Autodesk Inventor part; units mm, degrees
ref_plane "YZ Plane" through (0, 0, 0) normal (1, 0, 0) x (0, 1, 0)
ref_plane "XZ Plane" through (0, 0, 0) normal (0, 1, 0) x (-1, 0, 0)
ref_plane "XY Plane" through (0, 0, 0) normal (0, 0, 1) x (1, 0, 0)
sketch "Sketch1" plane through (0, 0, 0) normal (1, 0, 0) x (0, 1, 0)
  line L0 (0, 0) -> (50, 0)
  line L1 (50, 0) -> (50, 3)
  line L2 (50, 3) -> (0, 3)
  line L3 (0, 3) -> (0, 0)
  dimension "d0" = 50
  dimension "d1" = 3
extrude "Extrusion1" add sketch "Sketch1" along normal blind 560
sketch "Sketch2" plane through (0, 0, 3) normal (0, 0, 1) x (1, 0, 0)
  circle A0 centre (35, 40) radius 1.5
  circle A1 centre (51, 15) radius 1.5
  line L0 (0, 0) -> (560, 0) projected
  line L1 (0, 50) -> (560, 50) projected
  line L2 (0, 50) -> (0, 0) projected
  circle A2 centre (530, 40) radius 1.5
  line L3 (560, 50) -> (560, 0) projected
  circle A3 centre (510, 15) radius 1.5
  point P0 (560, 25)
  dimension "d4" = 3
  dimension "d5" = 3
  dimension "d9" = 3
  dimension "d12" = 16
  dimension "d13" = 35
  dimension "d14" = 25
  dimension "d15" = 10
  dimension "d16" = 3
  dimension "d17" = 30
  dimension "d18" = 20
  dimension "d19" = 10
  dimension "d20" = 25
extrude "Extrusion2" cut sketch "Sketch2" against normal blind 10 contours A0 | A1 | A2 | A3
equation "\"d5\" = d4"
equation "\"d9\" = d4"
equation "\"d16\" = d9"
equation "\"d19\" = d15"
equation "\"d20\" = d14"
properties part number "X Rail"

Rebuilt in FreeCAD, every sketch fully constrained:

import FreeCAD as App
import Part
import Sketcher
from FreeCAD import Vector
Q = App.Units.Quantity


def add_polygon(sketch, points):
    """Adds a closed chain of lines whose ends are joined by coincident constraints."""
    first, n = sketch.GeometryCount, len(points)
    for a, b in zip(points, points[1:] + points[:1]):
        sketch.addGeometry(Part.LineSegment(App.Vector(*a, 0), App.Vector(*b, 0)), False)
    for i in range(n):
        sketch.addConstraint(Sketcher.Constraint("Coincident", first + i, 2, first + (i + 1) % n, 1))

doc = App.newDocument("Part")
body = doc.addObject("PartDesign::Body", "Body")

# Sketch on YZ plane
sketch1 = body.newObject("Sketcher::SketchObject", "Sketch")
sketch1.AttachmentSupport = (doc.getObject("YZ_Plane"), [""])
sketch1.MapMode = "FlatFace"
add_polygon(sketch1, [(0, 3), (0, 0), (50, 0), (50, 3)])  # lines 0-3
sketch1.addConstraint([
    Sketcher.Constraint("Vertical", 0),
    Sketcher.Constraint("Horizontal", 1),
    Sketcher.Constraint("Vertical", 2),
    Sketcher.Constraint("Horizontal", 3),
    Sketcher.Constraint("Coincident", 0, 2, -1, 1),
    Sketcher.Constraint("DistanceX", 1, 1, 1, 2, Q("50 mm")),
    Sketcher.Constraint("DistanceY", 0, 2, 0, 1, Q("3 mm")),
])
pad1 = body.newObject("PartDesign::Pad", "Pad")
pad1.Profile = sketch1
pad1.Length = 560

# Sketch on XY plane
sketch2 = body.newObject("Sketcher::SketchObject", "Sketch001")
sketch2.AttachmentSupport = (doc.getObject("XY_Plane"), [""])
sketch2.MapMode = "FlatFace"
sketch2.AttachmentOffset = App.Placement(Vector(0, 0, 3), App.Rotation())
sketch2.addGeometry([
    Part.Circle(Vector(35, 40, 0), Vector(0, 0, 1), 1.5),
    Part.Circle(Vector(51, 15, 0), Vector(0, 0, 1), 1.5),
    Part.Circle(Vector(530, 40, 0), Vector(0, 0, 1), 1.5),
    Part.Circle(Vector(510, 15, 0), Vector(0, 0, 1), 1.5),
], False)
sketch2.addConstraint([
    Sketcher.Constraint("Equal", 0, 1),
    Sketcher.Constraint("Equal", 1, 2),
    Sketcher.Constraint("Equal", 2, 3),
    Sketcher.Constraint("Horizontal", 0, 3, 2, 3),
    Sketcher.Constraint("Horizontal", 1, 3, 3, 3),
    Sketcher.Constraint("Diameter", 0, Q("3 mm")),
    Sketcher.Constraint("DistanceX", -1, 1, 0, 3, Q("35 mm")),
    Sketcher.Constraint("DistanceX", 0, 3, 1, 3, Q("16 mm")),
    Sketcher.Constraint("DistanceY", 1, 3, 0, 3, Q("25 mm")),
    Sketcher.Constraint("DistanceX", 3, 3, 2, 3, Q("20 mm")),
    Sketcher.Constraint("DistanceY", -1, 1, 0, 3, Q("40 mm")),
    Sketcher.Constraint("DistanceX", -1, 1, 2, 3, Q("530 mm")),
])
pocket1 = body.newObject("PartDesign::Pocket", "Pocket")
pocket1.Profile = sketch2
pocket1.Length = 10

doc.recompute()
